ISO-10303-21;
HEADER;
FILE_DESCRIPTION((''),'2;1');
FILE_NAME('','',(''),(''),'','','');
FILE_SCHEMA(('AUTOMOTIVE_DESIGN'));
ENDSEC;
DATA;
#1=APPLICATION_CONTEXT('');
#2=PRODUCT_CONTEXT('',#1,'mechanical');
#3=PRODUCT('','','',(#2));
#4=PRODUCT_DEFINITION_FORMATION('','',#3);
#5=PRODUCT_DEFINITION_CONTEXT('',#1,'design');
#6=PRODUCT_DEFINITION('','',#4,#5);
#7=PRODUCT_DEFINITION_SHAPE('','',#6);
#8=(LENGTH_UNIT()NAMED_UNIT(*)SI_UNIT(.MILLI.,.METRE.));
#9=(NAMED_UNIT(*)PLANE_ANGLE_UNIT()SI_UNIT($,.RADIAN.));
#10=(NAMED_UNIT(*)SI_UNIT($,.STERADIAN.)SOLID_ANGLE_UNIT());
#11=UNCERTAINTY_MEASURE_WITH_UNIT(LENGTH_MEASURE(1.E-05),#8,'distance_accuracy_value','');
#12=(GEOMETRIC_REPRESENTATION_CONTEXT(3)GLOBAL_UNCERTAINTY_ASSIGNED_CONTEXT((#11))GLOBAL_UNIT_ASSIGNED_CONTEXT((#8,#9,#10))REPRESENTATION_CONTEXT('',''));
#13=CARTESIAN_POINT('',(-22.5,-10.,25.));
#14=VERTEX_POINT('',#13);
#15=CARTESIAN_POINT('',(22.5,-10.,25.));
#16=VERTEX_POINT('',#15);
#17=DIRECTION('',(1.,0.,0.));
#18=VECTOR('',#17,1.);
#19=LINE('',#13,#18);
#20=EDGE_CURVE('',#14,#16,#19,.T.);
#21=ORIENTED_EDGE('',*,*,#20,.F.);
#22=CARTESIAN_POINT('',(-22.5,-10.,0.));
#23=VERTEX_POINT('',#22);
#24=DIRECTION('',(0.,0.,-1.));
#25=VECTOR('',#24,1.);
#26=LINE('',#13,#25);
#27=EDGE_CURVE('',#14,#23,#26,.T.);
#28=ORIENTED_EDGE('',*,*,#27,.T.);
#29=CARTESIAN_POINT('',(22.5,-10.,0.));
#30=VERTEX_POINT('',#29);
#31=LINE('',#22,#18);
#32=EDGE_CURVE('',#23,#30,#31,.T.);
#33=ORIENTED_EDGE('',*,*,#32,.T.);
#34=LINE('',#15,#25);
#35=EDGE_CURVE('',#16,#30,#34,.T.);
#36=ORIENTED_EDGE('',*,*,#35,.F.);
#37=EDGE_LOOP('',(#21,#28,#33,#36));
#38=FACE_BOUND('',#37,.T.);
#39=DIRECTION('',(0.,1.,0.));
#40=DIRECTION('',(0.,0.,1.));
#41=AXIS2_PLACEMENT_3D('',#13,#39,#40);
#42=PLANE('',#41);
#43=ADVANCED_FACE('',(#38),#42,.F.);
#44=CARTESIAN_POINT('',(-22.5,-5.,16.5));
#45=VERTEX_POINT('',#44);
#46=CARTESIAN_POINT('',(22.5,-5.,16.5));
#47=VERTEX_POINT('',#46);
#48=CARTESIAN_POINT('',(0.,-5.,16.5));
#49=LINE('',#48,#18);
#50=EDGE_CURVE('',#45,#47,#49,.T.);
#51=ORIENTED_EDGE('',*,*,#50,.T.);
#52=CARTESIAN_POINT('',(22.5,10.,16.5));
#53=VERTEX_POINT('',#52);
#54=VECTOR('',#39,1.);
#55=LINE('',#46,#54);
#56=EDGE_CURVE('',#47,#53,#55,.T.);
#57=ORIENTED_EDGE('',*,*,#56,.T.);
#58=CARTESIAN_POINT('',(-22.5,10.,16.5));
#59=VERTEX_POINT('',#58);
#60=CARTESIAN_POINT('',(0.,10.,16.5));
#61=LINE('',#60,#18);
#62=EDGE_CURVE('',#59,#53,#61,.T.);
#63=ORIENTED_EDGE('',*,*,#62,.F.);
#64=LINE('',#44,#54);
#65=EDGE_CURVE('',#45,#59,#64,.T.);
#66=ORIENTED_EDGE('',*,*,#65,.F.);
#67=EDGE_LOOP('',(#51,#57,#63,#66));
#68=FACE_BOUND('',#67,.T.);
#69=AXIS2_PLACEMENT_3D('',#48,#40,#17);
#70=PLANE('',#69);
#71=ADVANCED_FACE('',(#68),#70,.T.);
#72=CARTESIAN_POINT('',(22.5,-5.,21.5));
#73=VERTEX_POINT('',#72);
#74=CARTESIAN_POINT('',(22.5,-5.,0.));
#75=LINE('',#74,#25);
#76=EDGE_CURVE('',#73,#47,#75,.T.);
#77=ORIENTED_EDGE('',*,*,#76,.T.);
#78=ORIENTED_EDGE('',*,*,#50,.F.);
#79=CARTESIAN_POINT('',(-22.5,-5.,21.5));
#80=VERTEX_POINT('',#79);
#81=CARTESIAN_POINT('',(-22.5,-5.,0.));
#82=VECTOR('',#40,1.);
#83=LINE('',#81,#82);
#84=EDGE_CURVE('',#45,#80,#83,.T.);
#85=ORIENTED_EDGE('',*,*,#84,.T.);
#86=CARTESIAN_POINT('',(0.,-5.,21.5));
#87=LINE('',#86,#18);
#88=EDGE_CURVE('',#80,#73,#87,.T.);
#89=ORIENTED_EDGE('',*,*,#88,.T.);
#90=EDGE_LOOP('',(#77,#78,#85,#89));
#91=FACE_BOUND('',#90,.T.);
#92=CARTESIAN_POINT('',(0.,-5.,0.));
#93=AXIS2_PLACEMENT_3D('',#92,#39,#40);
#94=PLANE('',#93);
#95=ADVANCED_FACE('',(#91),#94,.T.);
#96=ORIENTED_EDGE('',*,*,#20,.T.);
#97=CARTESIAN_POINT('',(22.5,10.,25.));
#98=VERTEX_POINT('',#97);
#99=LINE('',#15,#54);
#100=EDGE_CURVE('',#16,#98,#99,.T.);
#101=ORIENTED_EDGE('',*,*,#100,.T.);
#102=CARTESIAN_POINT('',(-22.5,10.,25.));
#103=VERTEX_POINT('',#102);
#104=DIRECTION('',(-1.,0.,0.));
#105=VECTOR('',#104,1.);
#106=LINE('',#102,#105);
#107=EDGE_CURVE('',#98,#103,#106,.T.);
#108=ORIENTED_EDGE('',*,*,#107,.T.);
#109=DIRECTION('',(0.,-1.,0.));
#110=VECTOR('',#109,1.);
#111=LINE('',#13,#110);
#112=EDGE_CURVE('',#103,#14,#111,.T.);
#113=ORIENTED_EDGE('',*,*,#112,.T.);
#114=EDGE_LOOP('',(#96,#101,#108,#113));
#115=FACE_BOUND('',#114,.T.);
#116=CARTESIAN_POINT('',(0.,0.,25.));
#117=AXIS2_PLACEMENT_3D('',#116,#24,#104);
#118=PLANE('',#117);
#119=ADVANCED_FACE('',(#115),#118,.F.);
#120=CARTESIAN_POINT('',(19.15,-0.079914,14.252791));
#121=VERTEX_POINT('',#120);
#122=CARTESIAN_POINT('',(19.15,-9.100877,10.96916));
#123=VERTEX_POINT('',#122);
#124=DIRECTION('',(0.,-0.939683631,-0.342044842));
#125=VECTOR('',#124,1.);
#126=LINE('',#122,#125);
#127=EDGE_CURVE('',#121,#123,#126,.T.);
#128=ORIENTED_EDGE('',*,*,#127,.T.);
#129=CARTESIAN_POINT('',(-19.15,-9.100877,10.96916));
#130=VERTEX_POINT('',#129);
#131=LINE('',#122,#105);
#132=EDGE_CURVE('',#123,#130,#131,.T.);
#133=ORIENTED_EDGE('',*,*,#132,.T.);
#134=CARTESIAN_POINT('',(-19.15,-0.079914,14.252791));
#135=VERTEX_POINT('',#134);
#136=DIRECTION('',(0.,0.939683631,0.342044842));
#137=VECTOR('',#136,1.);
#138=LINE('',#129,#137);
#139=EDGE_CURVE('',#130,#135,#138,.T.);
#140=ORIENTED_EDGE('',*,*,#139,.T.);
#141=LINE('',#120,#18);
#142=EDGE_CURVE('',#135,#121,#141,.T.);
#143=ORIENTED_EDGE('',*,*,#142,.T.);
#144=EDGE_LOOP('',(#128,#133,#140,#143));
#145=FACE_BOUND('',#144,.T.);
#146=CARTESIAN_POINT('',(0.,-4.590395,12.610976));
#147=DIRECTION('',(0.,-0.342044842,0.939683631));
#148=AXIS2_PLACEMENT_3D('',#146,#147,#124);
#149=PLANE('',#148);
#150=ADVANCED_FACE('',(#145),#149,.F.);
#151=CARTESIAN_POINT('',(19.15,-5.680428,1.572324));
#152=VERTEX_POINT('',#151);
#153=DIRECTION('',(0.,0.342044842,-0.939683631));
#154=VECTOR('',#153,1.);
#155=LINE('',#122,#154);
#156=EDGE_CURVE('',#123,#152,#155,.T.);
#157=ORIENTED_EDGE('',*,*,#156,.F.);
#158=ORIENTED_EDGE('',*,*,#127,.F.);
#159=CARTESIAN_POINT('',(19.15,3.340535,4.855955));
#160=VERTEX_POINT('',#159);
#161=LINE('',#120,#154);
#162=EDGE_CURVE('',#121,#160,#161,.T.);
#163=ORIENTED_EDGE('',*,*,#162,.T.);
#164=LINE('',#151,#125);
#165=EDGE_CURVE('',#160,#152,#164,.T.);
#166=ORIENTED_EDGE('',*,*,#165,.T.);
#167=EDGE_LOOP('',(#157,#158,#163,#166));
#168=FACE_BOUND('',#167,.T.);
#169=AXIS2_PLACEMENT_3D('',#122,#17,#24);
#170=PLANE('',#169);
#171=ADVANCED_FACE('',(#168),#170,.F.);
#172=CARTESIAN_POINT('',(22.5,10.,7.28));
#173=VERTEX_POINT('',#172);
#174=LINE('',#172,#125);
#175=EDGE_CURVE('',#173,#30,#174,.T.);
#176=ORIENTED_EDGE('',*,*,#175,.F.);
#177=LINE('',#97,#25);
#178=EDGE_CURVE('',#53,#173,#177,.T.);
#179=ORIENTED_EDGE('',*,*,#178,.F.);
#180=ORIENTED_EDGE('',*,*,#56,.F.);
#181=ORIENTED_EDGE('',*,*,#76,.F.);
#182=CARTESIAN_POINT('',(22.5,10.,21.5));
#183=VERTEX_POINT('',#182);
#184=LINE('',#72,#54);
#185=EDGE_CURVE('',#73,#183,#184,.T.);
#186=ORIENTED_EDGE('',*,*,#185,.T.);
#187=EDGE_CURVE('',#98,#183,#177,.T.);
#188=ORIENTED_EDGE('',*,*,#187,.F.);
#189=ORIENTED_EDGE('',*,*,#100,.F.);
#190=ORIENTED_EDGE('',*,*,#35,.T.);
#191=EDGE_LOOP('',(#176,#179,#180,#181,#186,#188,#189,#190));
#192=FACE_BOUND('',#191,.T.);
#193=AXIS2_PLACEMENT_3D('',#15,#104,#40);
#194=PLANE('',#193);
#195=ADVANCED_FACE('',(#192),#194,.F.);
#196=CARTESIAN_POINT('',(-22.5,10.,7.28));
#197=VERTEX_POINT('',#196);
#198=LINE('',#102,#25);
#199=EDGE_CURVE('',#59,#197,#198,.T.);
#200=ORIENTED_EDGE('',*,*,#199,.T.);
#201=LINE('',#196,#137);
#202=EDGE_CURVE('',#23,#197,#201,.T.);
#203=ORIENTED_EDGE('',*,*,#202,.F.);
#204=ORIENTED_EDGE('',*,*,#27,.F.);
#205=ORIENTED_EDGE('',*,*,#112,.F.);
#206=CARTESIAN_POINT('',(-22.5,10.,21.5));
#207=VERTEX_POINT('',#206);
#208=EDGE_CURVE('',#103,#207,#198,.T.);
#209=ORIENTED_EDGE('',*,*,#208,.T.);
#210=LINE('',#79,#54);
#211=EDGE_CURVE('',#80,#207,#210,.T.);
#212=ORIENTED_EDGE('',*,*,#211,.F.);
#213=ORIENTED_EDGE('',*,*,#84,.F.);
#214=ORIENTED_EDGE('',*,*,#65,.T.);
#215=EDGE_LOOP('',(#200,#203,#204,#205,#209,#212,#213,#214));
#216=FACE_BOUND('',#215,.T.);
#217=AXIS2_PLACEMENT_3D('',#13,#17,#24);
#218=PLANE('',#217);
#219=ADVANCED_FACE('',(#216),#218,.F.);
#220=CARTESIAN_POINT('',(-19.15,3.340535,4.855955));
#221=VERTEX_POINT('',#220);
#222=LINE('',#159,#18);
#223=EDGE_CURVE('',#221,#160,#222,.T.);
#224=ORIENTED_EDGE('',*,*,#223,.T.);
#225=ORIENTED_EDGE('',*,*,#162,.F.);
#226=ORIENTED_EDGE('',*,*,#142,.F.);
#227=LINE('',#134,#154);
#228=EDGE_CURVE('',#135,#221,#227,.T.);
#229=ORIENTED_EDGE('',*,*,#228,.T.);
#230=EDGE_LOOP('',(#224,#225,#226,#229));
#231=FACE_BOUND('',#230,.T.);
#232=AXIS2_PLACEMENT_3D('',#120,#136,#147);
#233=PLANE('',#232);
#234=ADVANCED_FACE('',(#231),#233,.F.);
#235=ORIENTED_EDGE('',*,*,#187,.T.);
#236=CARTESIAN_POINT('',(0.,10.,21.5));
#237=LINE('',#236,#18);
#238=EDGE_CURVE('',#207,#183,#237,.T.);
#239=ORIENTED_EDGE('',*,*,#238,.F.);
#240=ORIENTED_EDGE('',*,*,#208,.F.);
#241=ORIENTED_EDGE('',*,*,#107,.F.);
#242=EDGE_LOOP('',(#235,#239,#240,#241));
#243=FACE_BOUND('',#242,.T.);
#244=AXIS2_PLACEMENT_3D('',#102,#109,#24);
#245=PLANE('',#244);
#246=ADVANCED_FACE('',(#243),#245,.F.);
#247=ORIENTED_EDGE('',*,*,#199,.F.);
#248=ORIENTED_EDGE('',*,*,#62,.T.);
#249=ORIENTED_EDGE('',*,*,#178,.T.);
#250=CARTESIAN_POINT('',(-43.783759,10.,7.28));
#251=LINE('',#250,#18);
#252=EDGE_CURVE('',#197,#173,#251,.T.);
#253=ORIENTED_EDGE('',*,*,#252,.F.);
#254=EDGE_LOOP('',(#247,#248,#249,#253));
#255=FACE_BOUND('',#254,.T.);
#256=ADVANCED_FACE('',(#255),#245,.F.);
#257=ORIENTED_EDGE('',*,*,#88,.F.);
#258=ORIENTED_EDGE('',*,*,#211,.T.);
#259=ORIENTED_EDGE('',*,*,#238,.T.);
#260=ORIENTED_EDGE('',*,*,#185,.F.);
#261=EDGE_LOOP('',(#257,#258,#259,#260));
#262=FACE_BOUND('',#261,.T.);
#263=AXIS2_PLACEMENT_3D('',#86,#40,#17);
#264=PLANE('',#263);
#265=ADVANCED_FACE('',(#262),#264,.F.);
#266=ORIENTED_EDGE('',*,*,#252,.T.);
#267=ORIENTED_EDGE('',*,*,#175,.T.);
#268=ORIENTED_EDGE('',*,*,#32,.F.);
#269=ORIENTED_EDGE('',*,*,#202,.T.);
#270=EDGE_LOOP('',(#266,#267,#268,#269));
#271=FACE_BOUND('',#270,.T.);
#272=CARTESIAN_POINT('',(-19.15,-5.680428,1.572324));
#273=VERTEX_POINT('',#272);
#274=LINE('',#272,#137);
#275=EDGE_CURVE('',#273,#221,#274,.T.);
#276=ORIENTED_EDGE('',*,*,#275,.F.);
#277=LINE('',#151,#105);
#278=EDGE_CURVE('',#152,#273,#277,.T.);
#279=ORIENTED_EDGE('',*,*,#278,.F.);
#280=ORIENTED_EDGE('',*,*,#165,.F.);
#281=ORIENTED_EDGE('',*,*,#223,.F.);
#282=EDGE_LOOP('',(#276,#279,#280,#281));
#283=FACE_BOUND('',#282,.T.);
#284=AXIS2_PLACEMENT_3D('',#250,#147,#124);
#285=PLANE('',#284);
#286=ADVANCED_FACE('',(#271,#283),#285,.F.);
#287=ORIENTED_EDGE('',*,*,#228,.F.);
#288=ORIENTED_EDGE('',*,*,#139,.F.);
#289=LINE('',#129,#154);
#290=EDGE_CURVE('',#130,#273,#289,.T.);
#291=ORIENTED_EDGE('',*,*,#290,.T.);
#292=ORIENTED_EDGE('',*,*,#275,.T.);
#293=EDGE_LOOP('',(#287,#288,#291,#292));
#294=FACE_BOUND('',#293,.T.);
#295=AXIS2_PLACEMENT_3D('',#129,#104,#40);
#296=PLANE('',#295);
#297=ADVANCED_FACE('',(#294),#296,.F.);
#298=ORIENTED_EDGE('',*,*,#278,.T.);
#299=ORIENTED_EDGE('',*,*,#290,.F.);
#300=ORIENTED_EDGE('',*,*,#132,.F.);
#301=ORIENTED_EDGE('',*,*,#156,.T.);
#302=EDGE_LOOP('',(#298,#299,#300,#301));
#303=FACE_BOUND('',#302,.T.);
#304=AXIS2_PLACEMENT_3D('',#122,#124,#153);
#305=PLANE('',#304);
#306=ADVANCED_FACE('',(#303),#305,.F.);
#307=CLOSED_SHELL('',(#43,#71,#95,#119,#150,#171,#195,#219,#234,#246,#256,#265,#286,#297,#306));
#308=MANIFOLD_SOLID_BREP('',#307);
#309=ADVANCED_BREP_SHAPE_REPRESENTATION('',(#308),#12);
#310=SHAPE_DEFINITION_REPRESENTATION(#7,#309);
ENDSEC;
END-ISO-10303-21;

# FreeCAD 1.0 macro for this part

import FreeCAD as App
import Part
import Sketcher
from FreeCAD import Vector
Q = App.Units.Quantity

doc = App.newDocument("Part")
params = doc.addObject("Spreadsheet::Sheet", "Params")
for row, (alias, value) in enumerate([
    ("sketch1_width", "45 mm"),
    ("sketch1_height", "20 mm"),
    ("pad1_length", "25 mm"),
    ("sketch2_width", "45 mm"),
    ("sketch2_height", "5 mm"),
    ("pocket1_length", "15 mm"),
    ("sketch3_width", "20 mm"),
    ("sketch3_height", "7.28 mm"),
    ("pocket2_length", "45 mm"),
    ("sketch4_width", "38.3 mm"),
    ("sketch4_height", "9.6 mm"),
    ("pocket3_length", "10 mm"),
], start=1):
    params.set(f"A{row}", alias)
    params.set(f"B{row}", "=" + value)
    params.setAlias(f"B{row}", alias)

body = doc.addObject("PartDesign::Body", "Body")

# Sketch on XY plane
sketch1 = doc.addObject("Sketcher::SketchObject", "Sketch")
body.addObject(sketch1)
sketch1.AttachmentSupport = (doc.XY_Plane, [""])
sketch1.MapMode = "FlatFace"
sketch1.addGeometry(Part.LineSegment(Vector(-22.5, 10, 0), Vector(-22.5, -10, 0)), False)
sketch1.addGeometry(Part.LineSegment(Vector(-22.5, -10, 0), Vector(22.5, -10, 0)), False)
sketch1.addGeometry(Part.LineSegment(Vector(22.5, -10, 0), Vector(22.5, 10, 0)), False)
sketch1.addGeometry(Part.LineSegment(Vector(22.5, 10, 0), Vector(-22.5, 10, 0)), False)
sketch1.addConstraint(Sketcher.Constraint("Coincident", 0, 2, 1, 1))
sketch1.addConstraint(Sketcher.Constraint("Coincident", 1, 2, 2, 1))
sketch1.addConstraint(Sketcher.Constraint("Coincident", 2, 2, 3, 1))
sketch1.addConstraint(Sketcher.Constraint("Coincident", 3, 2, 0, 1))
sketch1.addConstraint(Sketcher.Constraint("Vertical", 0))
sketch1.addConstraint(Sketcher.Constraint("Horizontal", 1))
sketch1.addConstraint(Sketcher.Constraint("Vertical", 2))
sketch1.addConstraint(Sketcher.Constraint("Horizontal", 3))
sketch1.addConstraint(Sketcher.Constraint("Symmetric", 0, 2, 2, 2, -1, 1))
sketch1.addConstraint(Sketcher.Constraint("DistanceX", 1, 1, 1, 2, Q("45 mm")))
sketch1.addConstraint(Sketcher.Constraint("DistanceY", 0, 2, 0, 1, Q("20 mm")))
sketch1.setExpression("Constraints[9]", "Params.sketch1_width")
sketch1.setExpression("Constraints[10]", "Params.sketch1_height")
pad1 = doc.addObject("PartDesign::Pad", "Pad")
body.addObject(pad1)
pad1.Profile = sketch1
pad1.setExpression("Length", "Params.pad1_length")

# Sketch on XZ plane
sketch2 = doc.addObject("Sketcher::SketchObject", "Sketch001")
body.addObject(sketch2)
sketch2.AttachmentSupport = (doc.XZ_Plane, [""])
sketch2.MapMode = "FlatFace"
sketch2.AttachmentOffset = App.Placement(Vector(0, 0, -10), App.Rotation())
sketch2.addGeometry(Part.LineSegment(Vector(-22.5, 16.5, 0), Vector(-22.5, 21.5, 0)), False)
sketch2.addGeometry(Part.LineSegment(Vector(-22.5, 21.5, 0), Vector(22.5, 21.5, 0)), False)
sketch2.addGeometry(Part.LineSegment(Vector(22.5, 21.5, 0), Vector(22.5, 16.5, 0)), False)
sketch2.addGeometry(Part.LineSegment(Vector(22.5, 16.5, 0), Vector(-22.5, 16.5, 0)), False)
sketch2.addConstraint(Sketcher.Constraint("Coincident", 0, 2, 1, 1))
sketch2.addConstraint(Sketcher.Constraint("Coincident", 1, 2, 2, 1))
sketch2.addConstraint(Sketcher.Constraint("Coincident", 2, 2, 3, 1))
sketch2.addConstraint(Sketcher.Constraint("Coincident", 3, 2, 0, 1))
sketch2.addConstraint(Sketcher.Constraint("Vertical", 0))
sketch2.addConstraint(Sketcher.Constraint("Horizontal", 1))
sketch2.addConstraint(Sketcher.Constraint("Vertical", 2))
sketch2.addConstraint(Sketcher.Constraint("Horizontal", 3))
sketch2.addConstraint(Sketcher.Constraint("DistanceX", 1, 1, 1, 2, Q("45 mm")))
sketch2.addConstraint(Sketcher.Constraint("DistanceY", 0, 1, 0, 2, Q("5 mm")))
sketch2.addConstraint(Sketcher.Constraint("DistanceX", 0, 2, -1, 1, Q("22.5 mm")))
sketch2.addConstraint(Sketcher.Constraint("DistanceY", -1, 1, 0, 2, Q("21.5 mm")))
sketch2.setExpression("Constraints[8]", "Params.sketch2_width")
sketch2.setExpression("Constraints[9]", "Params.sketch2_height")
pocket1 = doc.addObject("PartDesign::Pocket", "Pocket")
body.addObject(pocket1)
pocket1.Profile = sketch2
pocket1.setExpression("Length", "Params.pocket1_length")
pocket1.Reversed = True

# Sketch on YZ plane
sketch3 = doc.addObject("Sketcher::SketchObject", "Sketch002")
body.addObject(sketch3)
sketch3.AttachmentSupport = (doc.YZ_Plane, [""])
sketch3.MapMode = "FlatFace"
sketch3.AttachmentOffset = App.Placement(Vector(0, 0, 22.5), App.Rotation())
sketch3.addGeometry(Part.LineSegment(Vector(-10, 0, 0), Vector(10, 0, 0)), False)
sketch3.addGeometry(Part.LineSegment(Vector(10, 0, 0), Vector(10, 7.28, 0)), False)
sketch3.addGeometry(Part.LineSegment(Vector(10, 7.28, 0), Vector(-10, 0, 0)), False)
sketch3.addConstraint(Sketcher.Constraint("Coincident", 0, 2, 1, 1))
sketch3.addConstraint(Sketcher.Constraint("Coincident", 1, 2, 2, 1))
sketch3.addConstraint(Sketcher.Constraint("Coincident", 2, 2, 0, 1))
sketch3.addConstraint(Sketcher.Constraint("Horizontal", 0))
sketch3.addConstraint(Sketcher.Constraint("Vertical", 1))
sketch3.addConstraint(Sketcher.Constraint("Symmetric", 0, 2, 2, 2, -1, 1))
sketch3.addConstraint(Sketcher.Constraint("DistanceX", 0, 1, 0, 2, Q("20 mm")))
sketch3.addConstraint(Sketcher.Constraint("DistanceY", 1, 1, 1, 2, Q("7.28 mm")))
sketch3.setExpression("Constraints[6]", "Params.sketch3_width")
sketch3.setExpression("Constraints[7]", "Params.sketch3_height")
pocket2 = doc.addObject("PartDesign::Pocket", "Pocket001")
body.addObject(pocket2)
pocket2.Profile = sketch3
pocket2.setExpression("Length", "Params.pocket2_length")

# Sketch on an angled plane
sketch4 = doc.addObject("Sketcher::SketchObject", "Sketch003")
body.addObject(sketch4)
sketch4.Placement = App.Placement(Vector(0, -1.169947, 3.214139), App.Rotation(Vector(-1, 0, 0), Vector(0, 0.939683631, 0.342044842), Vector(0, 0.342044842, -0.939683631), "ZXY"))
sketch4.addGeometry(Part.LineSegment(Vector(-19.15, 4.8, 0), Vector(-19.15, -4.8, 0)), False)
sketch4.addGeometry(Part.LineSegment(Vector(-19.15, -4.8, 0), Vector(19.15, -4.8, 0)), False)
sketch4.addGeometry(Part.LineSegment(Vector(19.15, -4.8, 0), Vector(19.15, 4.8, 0)), False)
sketch4.addGeometry(Part.LineSegment(Vector(19.15, 4.8, 0), Vector(-19.15, 4.8, 0)), False)
sketch4.addConstraint(Sketcher.Constraint("Coincident", 0, 2, 1, 1))
sketch4.addConstraint(Sketcher.Constraint("Coincident", 1, 2, 2, 1))
sketch4.addConstraint(Sketcher.Constraint("Coincident", 2, 2, 3, 1))
sketch4.addConstraint(Sketcher.Constraint("Coincident", 3, 2, 0, 1))
sketch4.addConstraint(Sketcher.Constraint("Vertical", 0))
sketch4.addConstraint(Sketcher.Constraint("Horizontal", 1))
sketch4.addConstraint(Sketcher.Constraint("Vertical", 2))
sketch4.addConstraint(Sketcher.Constraint("Horizontal", 3))
sketch4.addConstraint(Sketcher.Constraint("Symmetric", 0, 2, 2, 2, -1, 1))
sketch4.addConstraint(Sketcher.Constraint("DistanceX", 1, 1, 1, 2, Q("38.3 mm")))
sketch4.addConstraint(Sketcher.Constraint("DistanceY", 0, 2, 0, 1, Q("9.6 mm")))
sketch4.setExpression("Constraints[9]", "Params.sketch4_width")
sketch4.setExpression("Constraints[10]", "Params.sketch4_height")
pocket3 = doc.addObject("PartDesign::Pocket", "Pocket002")
body.addObject(pocket3)
pocket3.Profile = sketch4
pocket3.setExpression("Length", "Params.pocket3_length")

doc.recompute()
